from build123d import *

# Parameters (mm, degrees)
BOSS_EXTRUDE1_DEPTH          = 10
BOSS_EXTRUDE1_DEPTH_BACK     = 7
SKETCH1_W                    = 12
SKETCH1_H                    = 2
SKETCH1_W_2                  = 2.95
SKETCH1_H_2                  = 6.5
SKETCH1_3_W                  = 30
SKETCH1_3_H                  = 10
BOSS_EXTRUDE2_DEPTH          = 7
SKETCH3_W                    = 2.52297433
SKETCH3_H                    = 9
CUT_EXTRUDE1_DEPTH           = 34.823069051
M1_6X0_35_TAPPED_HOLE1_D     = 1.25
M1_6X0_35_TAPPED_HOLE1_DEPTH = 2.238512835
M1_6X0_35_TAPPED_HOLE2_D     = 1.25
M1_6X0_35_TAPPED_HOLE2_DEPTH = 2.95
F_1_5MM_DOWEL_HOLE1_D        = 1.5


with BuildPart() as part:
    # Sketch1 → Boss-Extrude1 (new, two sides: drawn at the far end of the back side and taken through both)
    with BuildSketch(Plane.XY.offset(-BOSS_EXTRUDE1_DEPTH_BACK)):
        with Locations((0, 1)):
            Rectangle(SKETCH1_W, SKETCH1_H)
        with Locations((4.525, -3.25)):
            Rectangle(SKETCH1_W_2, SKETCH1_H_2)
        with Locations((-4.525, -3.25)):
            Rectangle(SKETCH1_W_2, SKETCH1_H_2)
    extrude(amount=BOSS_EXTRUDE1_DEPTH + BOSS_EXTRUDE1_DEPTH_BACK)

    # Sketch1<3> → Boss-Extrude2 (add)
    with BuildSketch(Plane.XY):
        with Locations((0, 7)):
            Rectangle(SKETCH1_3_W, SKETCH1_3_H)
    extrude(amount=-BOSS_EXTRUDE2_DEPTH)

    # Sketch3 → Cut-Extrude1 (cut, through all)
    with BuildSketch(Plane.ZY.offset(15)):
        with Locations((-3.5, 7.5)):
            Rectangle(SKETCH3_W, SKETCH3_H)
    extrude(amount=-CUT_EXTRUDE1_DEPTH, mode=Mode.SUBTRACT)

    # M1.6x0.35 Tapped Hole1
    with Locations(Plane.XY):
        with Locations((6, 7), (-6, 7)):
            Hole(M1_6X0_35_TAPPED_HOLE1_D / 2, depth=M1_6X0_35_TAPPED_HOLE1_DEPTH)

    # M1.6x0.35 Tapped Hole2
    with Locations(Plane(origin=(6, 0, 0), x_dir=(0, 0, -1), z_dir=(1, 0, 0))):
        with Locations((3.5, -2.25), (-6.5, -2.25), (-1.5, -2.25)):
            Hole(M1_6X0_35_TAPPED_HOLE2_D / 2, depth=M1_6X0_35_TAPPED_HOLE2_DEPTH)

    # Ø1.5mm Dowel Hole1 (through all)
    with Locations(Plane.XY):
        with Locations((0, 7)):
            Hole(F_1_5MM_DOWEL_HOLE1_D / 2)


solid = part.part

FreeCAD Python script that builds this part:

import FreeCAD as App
import Part
import Sketcher

doc = App.newDocument("Part")
body = doc.addObject("PartDesign::Body", "Body")

sketch1 = doc.addObject("Sketcher::SketchObject", "Sketch")
body.addObject(sketch1)
sketch1.AttachmentSupport = (doc.XY_Plane, [""])
sketch1.MapMode = "FlatFace"
sketch1.addGeometry(Part.LineSegment(App.Vector(-6, 2, 0), App.Vector(-6, -6.5, 0)), False)
sketch1.addGeometry(Part.LineSegment(App.Vector(-6, -6.5, 0), App.Vector(-3, -6.5, 0)), False)
sketch1.addGeometry(Part.LineSegment(App.Vector(-3, -6.5, 0), App.Vector(-3, 0, 0)), False)
sketch1.addGeometry(Part.LineSegment(App.Vector(-3, 0, 0), App.Vector(3, 0, 0)), False)
sketch1.addGeometry(Part.LineSegment(App.Vector(3, 0, 0), App.Vector(3, -6.5, 0)), False)
sketch1.addGeometry(Part.LineSegment(App.Vector(3, -6.5, 0), App.Vector(6, -6.5, 0)), False)
sketch1.addGeometry(Part.LineSegment(App.Vector(6, -6.5, 0), App.Vector(6, 2, 0)), False)
sketch1.addGeometry(Part.LineSegment(App.Vector(6, 2, 0), App.Vector(-6, 2, 0)), False)
sketch1.addConstraint(Sketcher.Constraint("Coincident", 0, 2, 1, 1))
sketch1.addConstraint(Sketcher.Constraint("Coincident", 1, 2, 2, 1))
sketch1.addConstraint(Sketcher.Constraint("Coincident", 2, 2, 3, 1))
sketch1.addConstraint(Sketcher.Constraint("Coincident", 3, 2, 4, 1))
sketch1.addConstraint(Sketcher.Constraint("Coincident", 4, 2, 5, 1))
sketch1.addConstraint(Sketcher.Constraint("Coincident", 5, 2, 6, 1))
sketch1.addConstraint(Sketcher.Constraint("Coincident", 6, 2, 7, 1))
sketch1.addConstraint(Sketcher.Constraint("Coincident", 7, 2, 0, 1))
sketch1.addConstraint(Sketcher.Constraint("Vertical", 0))
sketch1.addConstraint(Sketcher.Constraint("Horizontal", 1))
sketch1.addConstraint(Sketcher.Constraint("Vertical", 2))
sketch1.addConstraint(Sketcher.Constraint("Horizontal", 3))
sketch1.addConstraint(Sketcher.Constraint("Vertical", 4))
sketch1.addConstraint(Sketcher.Constraint("Horizontal", 5))
sketch1.addConstraint(Sketcher.Constraint("Vertical", 6))
sketch1.addConstraint(Sketcher.Constraint("Horizontal", 7))
sketch1.addConstraint(Sketcher.Constraint("Symmetric", 2, 2, 3, 2, -1, 1))
sketch1.addConstraint(Sketcher.Constraint("Symmetric", 0, 2, 5, 2, -2))
sketch1.addConstraint(Sketcher.Constraint("DistanceX", 7, 2, 7, 1, 12.0))
sketch1.addConstraint(Sketcher.Constraint("DistanceX", 3, 1, 3, 2, 6.1))
sketch1.addConstraint(Sketcher.Constraint("DistanceY", 0, 2, 0, 1, 8.5))
sketch1.addConstraint(Sketcher.Constraint("DistanceY", 2, 1, 2, 2, 6.5))
pad1 = doc.addObject("PartDesign::Pad", "Pad")
body.addObject(pad1)
pad1.Profile = sketch1
pad1.Type = "TwoLengths"
pad1.Length = 10
pad1.Length2 = 7

sketch2 = doc.addObject("Sketcher::SketchObject", "Sketch001")
body.addObject(sketch2)
sketch2.AttachmentSupport = (doc.XY_Plane, [""])
sketch2.MapMode = "FlatFace"
sketch2.addGeometry(Part.LineSegment(App.Vector(-15, 12, 0), App.Vector(-15, 2, 0)), False)
sketch2.addGeometry(Part.LineSegment(App.Vector(-15, 2, 0), App.Vector(15, 2, 0)), False)
sketch2.addGeometry(Part.LineSegment(App.Vector(15, 2, 0), App.Vector(15, 12, 0)), False)
sketch2.addGeometry(Part.LineSegment(App.Vector(15, 12, 0), App.Vector(-15, 12, 0)), False)
sketch2.addConstraint(Sketcher.Constraint("Coincident", 0, 2, 1, 1))
sketch2.addConstraint(Sketcher.Constraint("Coincident", 1, 2, 2, 1))
sketch2.addConstraint(Sketcher.Constraint("Coincident", 2, 2, 3, 1))
sketch2.addConstraint(Sketcher.Constraint("Coincident", 3, 2, 0, 1))
sketch2.addConstraint(Sketcher.Constraint("Vertical", 0))
sketch2.addConstraint(Sketcher.Constraint("Horizontal", 1))
sketch2.addConstraint(Sketcher.Constraint("Vertical", 2))
sketch2.addConstraint(Sketcher.Constraint("Horizontal", 3))
sketch2.addConstraint(Sketcher.Constraint("DistanceX", 1, 1, 1, 2, 30.0))
sketch2.addConstraint(Sketcher.Constraint("DistanceY", 0, 2, 0, 1, 10.0))
sketch2.addConstraint(Sketcher.Constraint("DistanceX", 0, 2, -1, 1, 15.0))
sketch2.addConstraint(Sketcher.Constraint("DistanceY", -1, 1, 0, 2, 2.0))
pad2 = doc.addObject("PartDesign::Pad", "Pad001")
body.addObject(pad2)
pad2.Profile = sketch2
pad2.Length = 7
pad2.Reversed = True

sketch3 = doc.addObject("Sketcher::SketchObject", "Sketch002")
body.addObject(sketch3)
sketch3.AttachmentSupport = (doc.YZ_Plane, [""])
sketch3.MapMode = "FlatFace"
sketch3.AttachmentOffset = App.Placement(App.Vector(0, 0, -15), App.Rotation())
sketch3.addGeometry(Part.LineSegment(App.Vector(12, -4.8, 0), App.Vector(3, -4.8, 0)), False)
sketch3.addGeometry(Part.LineSegment(App.Vector(3, -4.8, 0), App.Vector(3, -2.2, 0)), False)
sketch3.addGeometry(Part.LineSegment(App.Vector(3, -2.2, 0), App.Vector(12, -2.2, 0)), False)
sketch3.addGeometry(Part.LineSegment(App.Vector(12, -2.2, 0), App.Vector(12, -4.8, 0)), False)
sketch3.addConstraint(Sketcher.Constraint("Coincident", 0, 2, 1, 1))
sketch3.addConstraint(Sketcher.Constraint("Coincident", 1, 2, 2, 1))
sketch3.addConstraint(Sketcher.Constraint("Coincident", 2, 2, 3, 1))
sketch3.addConstraint(Sketcher.Constraint("Coincident", 3, 2, 0, 1))
sketch3.addConstraint(Sketcher.Constraint("Horizontal", 0))
sketch3.addConstraint(Sketcher.Constraint("Vertical", 1))
sketch3.addConstraint(Sketcher.Constraint("Horizontal", 2))
sketch3.addConstraint(Sketcher.Constraint("Vertical", 3))
sketch3.addConstraint(Sketcher.Constraint("DistanceX", 0, 2, 0, 1, 9.0))
sketch3.addConstraint(Sketcher.Constraint("DistanceX", -1, 1, 0, 2, 3.0))
sketch3.addConstraint(Sketcher.Constraint("DistanceY", 1, 1, 1, 2, 2.522974))
sketch3.addConstraint(Sketcher.Constraint("DistanceY", 0, 2, -1, 1, 4.761487))
pocket1 = doc.addObject("PartDesign::Pocket", "Pocket")
body.addObject(pocket1)
pocket1.Profile = sketch3
pocket1.Type = "ThroughAll"
pocket1.Reversed = True

sketch4 = doc.addObject("Sketcher::SketchObject", "Sketch003")
body.addObject(sketch4)
sketch4.AttachmentSupport = (doc.XY_Plane, [""])
sketch4.MapMode = "FlatFace"
sketch4.addGeometry(Part.Circle(App.Vector(6, 7, 0), App.Vector(0, 0, 1), 0.6), False)
sketch4.addGeometry(Part.Circle(App.Vector(-6, 7, 0), App.Vector(0, 0, 1), 0.6), False)
sketch4.addConstraint(Sketcher.Constraint("Equal", 0, 1))
sketch4.addConstraint(Sketcher.Constraint("Symmetric", 0, 3, 1, 3, -2))
sketch4.addConstraint(Sketcher.Constraint("Diameter", 0, 1.25))
sketch4.addConstraint(Sketcher.Constraint("DistanceX", -1, 1, 0, 3, 6.0))
sketch4.addConstraint(Sketcher.Constraint("DistanceY", -1, 1, 0, 3, 7.0))
doc.recompute()
hole = doc.addObject("PartDesign::Hole", "Hole")
body.addObject(hole)
hole.Profile = sketch4
hole.ThreadType = "None"
hole.Diameter = 1.25
hole.DepthType = "Dimension"
hole.Depth = 2.238513
hole.DrillPoint = "Flat"

sketch5 = doc.addObject("Sketcher::SketchObject", "Sketch004")
body.addObject(sketch5)
sketch5.AttachmentSupport = (doc.YZ_Plane, [""])
sketch5.MapMode = "FlatFace"
sketch5.AttachmentOffset = App.Placement(App.Vector(0, 0, 6), App.Rotation())
sketch5.addGeometry(Part.Circle(App.Vector(-2.2, -3.5, 0), App.Vector(0, 0, 1), 0.6), False)
sketch5.addGeometry(Part.Circle(App.Vector(-2.2, 6.5, 0), App.Vector(0, 0, 1), 0.6), False)
sketch5.addGeometry(Part.Circle(App.Vector(-2.2, 1.5, 0), App.Vector(0, 0, 1), 0.6), False)
sketch5.addConstraint(Sketcher.Constraint("Equal", 0, 1))
sketch5.addConstraint(Sketcher.Constraint("Equal", 1, 2))
sketch5.addConstraint(Sketcher.Constraint("Vertical", 0, 3, 1, 3))
sketch5.addConstraint(Sketcher.Constraint("Vertical", 1, 3, 2, 3))
sketch5.addConstraint(Sketcher.Constraint("Diameter", 0, 1.25))
sketch5.addConstraint(Sketcher.Constraint("DistanceY", 0, 3, 1, 3, 10.0))
sketch5.addConstraint(Sketcher.Constraint("DistanceY", 0, 3, 2, 3, 5.0))
sketch5.addConstraint(Sketcher.Constraint("DistanceY", 0, 3, -1, 1, 3.5))
sketch5.addConstraint(Sketcher.Constraint("DistanceX", 0, 3, -1, 1, 2.25))
doc.recompute()
hole2 = doc.addObject("PartDesign::Hole", "Hole001")
body.addObject(hole2)
hole2.Profile = sketch5
hole2.ThreadType = "None"
hole2.Diameter = 1.25
hole2.DepthType = "Dimension"
hole2.Depth = 2.95
hole2.DrillPoint = "Flat"

sketch6 = doc.addObject("Sketcher::SketchObject", "Sketch005")
body.addObject(sketch6)
sketch6.AttachmentSupport = (doc.XY_Plane, [""])
sketch6.MapMode = "FlatFace"
sketch6.addGeometry(Part.Circle(App.Vector(0, 7, 0), App.Vector(0, 0, 1), 0.8), False)
sketch6.addConstraint(Sketcher.Constraint("PointOnObject", 0, 3, -2))
sketch6.addConstraint(Sketcher.Constraint("Diameter", 0, 1.5))
sketch6.addConstraint(Sketcher.Constraint("DistanceY", -1, 1, 0, 3, 7.0))
doc.recompute()
hole3 = doc.addObject("PartDesign::Hole", "Hole002")
body.addObject(hole3)
hole3.Profile = sketch6
hole3.ThreadType = "None"
hole3.Diameter = 1.5
hole3.DepthType = "ThroughAll"

doc.recompute()
